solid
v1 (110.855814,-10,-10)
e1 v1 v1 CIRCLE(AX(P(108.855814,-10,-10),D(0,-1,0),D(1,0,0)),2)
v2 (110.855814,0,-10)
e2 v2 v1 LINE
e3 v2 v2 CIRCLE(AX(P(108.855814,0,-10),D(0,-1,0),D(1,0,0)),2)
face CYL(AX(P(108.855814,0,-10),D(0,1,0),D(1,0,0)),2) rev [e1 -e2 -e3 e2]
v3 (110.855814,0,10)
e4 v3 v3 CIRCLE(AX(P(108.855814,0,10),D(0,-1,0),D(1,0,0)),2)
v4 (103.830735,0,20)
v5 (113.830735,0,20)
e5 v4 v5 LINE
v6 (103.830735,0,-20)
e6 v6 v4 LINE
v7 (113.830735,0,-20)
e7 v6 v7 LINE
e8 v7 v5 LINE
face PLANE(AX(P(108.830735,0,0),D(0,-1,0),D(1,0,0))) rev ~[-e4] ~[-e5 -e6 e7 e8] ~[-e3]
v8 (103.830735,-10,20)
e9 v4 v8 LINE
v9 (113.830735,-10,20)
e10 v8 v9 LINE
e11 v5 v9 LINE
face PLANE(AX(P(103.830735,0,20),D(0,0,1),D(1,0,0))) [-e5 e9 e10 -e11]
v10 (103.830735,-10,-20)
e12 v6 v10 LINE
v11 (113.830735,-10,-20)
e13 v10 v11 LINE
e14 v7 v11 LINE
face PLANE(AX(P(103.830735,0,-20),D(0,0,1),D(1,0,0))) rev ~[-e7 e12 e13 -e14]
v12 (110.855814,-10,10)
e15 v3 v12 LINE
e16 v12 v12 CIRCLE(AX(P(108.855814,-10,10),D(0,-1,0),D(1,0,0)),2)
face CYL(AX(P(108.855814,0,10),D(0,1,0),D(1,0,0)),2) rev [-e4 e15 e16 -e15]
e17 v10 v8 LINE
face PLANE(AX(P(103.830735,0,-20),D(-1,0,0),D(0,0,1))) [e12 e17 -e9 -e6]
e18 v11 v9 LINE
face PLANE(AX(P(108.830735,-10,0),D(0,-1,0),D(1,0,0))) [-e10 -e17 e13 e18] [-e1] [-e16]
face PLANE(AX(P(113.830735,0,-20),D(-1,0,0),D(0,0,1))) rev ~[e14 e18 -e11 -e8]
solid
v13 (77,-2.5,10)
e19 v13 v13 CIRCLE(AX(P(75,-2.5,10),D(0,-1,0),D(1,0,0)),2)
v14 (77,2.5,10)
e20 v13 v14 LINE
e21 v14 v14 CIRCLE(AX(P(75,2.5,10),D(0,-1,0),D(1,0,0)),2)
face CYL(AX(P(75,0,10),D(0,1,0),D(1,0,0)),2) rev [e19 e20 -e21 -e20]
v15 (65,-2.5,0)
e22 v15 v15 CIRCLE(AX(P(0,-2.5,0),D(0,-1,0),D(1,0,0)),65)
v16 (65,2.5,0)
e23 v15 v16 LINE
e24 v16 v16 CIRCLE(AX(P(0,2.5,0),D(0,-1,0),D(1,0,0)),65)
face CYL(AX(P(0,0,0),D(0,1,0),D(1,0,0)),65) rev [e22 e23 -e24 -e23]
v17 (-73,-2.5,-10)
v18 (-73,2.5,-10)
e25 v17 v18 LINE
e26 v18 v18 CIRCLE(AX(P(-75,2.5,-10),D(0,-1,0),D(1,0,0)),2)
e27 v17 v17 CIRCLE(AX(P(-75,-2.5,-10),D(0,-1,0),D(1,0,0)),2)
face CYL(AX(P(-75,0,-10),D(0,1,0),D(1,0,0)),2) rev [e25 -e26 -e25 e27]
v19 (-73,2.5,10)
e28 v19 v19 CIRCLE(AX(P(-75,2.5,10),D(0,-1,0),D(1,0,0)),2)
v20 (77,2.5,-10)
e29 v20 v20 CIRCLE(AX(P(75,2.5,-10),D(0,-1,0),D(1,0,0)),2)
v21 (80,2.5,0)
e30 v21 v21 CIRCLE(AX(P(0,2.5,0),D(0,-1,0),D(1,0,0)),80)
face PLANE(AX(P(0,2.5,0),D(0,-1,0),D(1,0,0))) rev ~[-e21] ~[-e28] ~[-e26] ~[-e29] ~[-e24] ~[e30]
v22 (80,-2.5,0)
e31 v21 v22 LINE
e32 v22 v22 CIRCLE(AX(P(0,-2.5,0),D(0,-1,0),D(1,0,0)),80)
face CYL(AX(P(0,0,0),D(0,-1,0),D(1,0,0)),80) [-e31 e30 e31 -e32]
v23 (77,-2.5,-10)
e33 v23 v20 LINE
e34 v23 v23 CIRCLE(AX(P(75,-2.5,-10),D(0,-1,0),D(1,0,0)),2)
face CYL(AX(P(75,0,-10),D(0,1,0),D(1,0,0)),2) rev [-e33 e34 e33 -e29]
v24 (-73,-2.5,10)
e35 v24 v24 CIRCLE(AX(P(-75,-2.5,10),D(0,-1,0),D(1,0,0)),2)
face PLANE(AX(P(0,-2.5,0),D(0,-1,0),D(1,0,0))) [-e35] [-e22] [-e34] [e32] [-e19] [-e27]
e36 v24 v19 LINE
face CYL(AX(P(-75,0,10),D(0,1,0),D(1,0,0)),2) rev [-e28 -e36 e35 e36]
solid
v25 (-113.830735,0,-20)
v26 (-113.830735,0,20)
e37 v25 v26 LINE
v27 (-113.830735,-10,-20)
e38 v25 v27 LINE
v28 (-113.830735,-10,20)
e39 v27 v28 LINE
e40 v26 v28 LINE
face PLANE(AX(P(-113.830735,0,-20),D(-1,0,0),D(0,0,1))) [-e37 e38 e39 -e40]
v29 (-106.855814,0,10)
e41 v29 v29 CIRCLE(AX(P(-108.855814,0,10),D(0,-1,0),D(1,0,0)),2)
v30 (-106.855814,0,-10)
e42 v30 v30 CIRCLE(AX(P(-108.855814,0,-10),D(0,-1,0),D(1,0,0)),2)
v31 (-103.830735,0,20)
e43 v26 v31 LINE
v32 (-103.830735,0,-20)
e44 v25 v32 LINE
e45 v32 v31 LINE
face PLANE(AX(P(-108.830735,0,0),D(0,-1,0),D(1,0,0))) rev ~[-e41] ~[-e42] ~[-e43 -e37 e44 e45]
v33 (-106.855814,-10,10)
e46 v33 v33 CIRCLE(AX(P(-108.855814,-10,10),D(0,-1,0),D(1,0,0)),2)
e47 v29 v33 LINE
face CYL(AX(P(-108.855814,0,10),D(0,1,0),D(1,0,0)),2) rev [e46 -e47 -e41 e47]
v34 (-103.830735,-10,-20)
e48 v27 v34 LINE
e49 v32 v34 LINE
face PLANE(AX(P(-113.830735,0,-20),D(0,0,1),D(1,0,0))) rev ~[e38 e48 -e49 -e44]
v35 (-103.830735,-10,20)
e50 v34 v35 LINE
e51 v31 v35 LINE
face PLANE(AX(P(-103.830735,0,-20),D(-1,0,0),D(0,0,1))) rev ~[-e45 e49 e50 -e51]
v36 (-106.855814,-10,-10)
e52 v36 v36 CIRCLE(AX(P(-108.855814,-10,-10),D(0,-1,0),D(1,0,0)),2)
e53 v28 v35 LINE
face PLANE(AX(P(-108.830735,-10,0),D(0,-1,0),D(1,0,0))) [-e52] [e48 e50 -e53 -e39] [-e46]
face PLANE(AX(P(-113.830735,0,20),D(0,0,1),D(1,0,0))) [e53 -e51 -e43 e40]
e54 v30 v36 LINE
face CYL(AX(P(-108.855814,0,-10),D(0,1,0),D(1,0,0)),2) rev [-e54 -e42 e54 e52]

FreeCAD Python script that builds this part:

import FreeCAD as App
import Part
import Sketcher
Q = App.Units.Quantity

doc = App.newDocument("Part")
body = doc.addObject("PartDesign::Body", "Body")

# Sketch on XZ plane
sketch1 = body.newObject("Sketcher::SketchObject", "Sketch")
sketch1.AttachmentSupport = (doc.getObject("XZ_Plane"), [""])
sketch1.MapMode = "FlatFace"
sketch1.addGeometry([
    Part.Circle(App.Vector(0, 0, 0), App.Vector(0, 0, 1), 80),  # 0
    Part.Circle(App.Vector(-75, -10, 0), App.Vector(0, 0, 1), 2),  # 1
    Part.Circle(App.Vector(75, -10, 0), App.Vector(0, 0, 1), 2),  # 2
    Part.Circle(App.Vector(-75, 10, 0), App.Vector(0, 0, 1), 2),  # 3
    Part.Circle(App.Vector(0, 0, 0), App.Vector(0, 0, 1), 65),  # 4
    Part.Circle(App.Vector(75, 10, 0), App.Vector(0, 0, 1), 2),  # 5
], False)
sketch1.addConstraint([
    Sketcher.Constraint("Coincident", 0, 3, -1, 1),
    Sketcher.Constraint("Coincident", 4, 3, -1, 1),
    Sketcher.Constraint("Equal", 1, 2),
    Sketcher.Constraint("Equal", 2, 3),
    Sketcher.Constraint("Equal", 3, 5),
    Sketcher.Constraint("Symmetric", 2, 3, 3, 3, -1, 1),
    Sketcher.Constraint("Symmetric", 1, 3, 5, 3, -1, 1),
    Sketcher.Constraint("Symmetric", 1, 3, 2, 3, -2),
    Sketcher.Constraint("Diameter", 0, Q("160 mm")),
    Sketcher.Constraint("Diameter", 1, Q("4 mm")),
    Sketcher.Constraint("Diameter", 4, Q("130 mm")),
    Sketcher.Constraint("DistanceX", 1, 3, -1, 1, Q("75 mm")),
    Sketcher.Constraint("DistanceY", 1, 3, -1, 1, Q("10 mm")),
])
pad1 = body.newObject("PartDesign::Pad", "Pad")
pad1.Profile = sketch1
pad1.Length = 5
pad1.Midplane = True
body2 = doc.addObject("PartDesign::Body", "Body001")

# Sketch on XZ plane
sketch2 = body2.newObject("Sketcher::SketchObject", "Sketch001")
sketch2.AttachmentSupport = (doc.getObject("XZ_Plane001"), [""])
sketch2.MapMode = "FlatFace"
sketch2.addGeometry([
    Part.LineSegment(App.Vector(-113.830735, 20, 0), App.Vector(-113.830735, -20, 0)),  # 0
    Part.LineSegment(App.Vector(-113.830735, -20, 0), App.Vector(-103.830735, -20, 0)),  # 1
    Part.LineSegment(App.Vector(-103.830735, -20, 0), App.Vector(-103.830735, 20, 0)),  # 2
    Part.LineSegment(App.Vector(-103.830735, 20, 0), App.Vector(-113.830735, 20, 0)),  # 3
    Part.Circle(App.Vector(-108.855814, -10, 0), App.Vector(0, 0, 1), 2),  # 4
    Part.Circle(App.Vector(-108.855814, 10, 0), App.Vector(0, 0, 1), 2),  # 5
], False)
sketch2.addConstraint([
    Sketcher.Constraint("Coincident", 0, 2, 1, 1),
    Sketcher.Constraint("Coincident", 1, 2, 2, 1),
    Sketcher.Constraint("Coincident", 2, 2, 3, 1),
    Sketcher.Constraint("Coincident", 3, 2, 0, 1),
    Sketcher.Constraint("Vertical", 0),
    Sketcher.Constraint("Horizontal", 1),
    Sketcher.Constraint("Vertical", 2),
    Sketcher.Constraint("Horizontal", 3),
    Sketcher.Constraint("Equal", 4, 5),
    Sketcher.Constraint("Symmetric", 4, 3, 5, 3, -1),
    Sketcher.Constraint("Diameter", 4, Q("4 mm")),
    Sketcher.Constraint("DistanceX", 1, 1, 1, 2, Q("10 mm")),
    Sketcher.Constraint("DistanceY", 0, 2, 0, 1, Q("40 mm")),
    Sketcher.Constraint("DistanceY", 4, 3, -1, 1, Q("10 mm")),
    Sketcher.Constraint("DistanceY", 0, 2, -1, 1, Q("20 mm")),
    Sketcher.Constraint("DistanceX", 0, 2, 4, 3, Q("4.974921 mm")),
    Sketcher.Constraint("DistanceX", 4, 3, -1, 1, Q("108.855814 mm")),
])
pad2 = body2.newObject("PartDesign::Pad", "Pad001")
pad2.Profile = sketch2
pad2.Length = 10
body3 = doc.addObject("PartDesign::Body", "Body002")

# Sketch on XZ plane
sketch3 = body3.newObject("Sketcher::SketchObject", "Sketch002")
sketch3.AttachmentSupport = (doc.getObject("XZ_Plane002"), [""])
sketch3.MapMode = "FlatFace"
sketch3.addGeometry([
    Part.LineSegment(App.Vector(103.830735, 20, 0), App.Vector(103.830735, -20, 0)),  # 0
    Part.LineSegment(App.Vector(103.830735, -20, 0), App.Vector(113.830735, -20, 0)),  # 1
    Part.LineSegment(App.Vector(113.830735, -20, 0), App.Vector(113.830735, 20, 0)),  # 2
    Part.LineSegment(App.Vector(113.830735, 20, 0), App.Vector(103.830735, 20, 0)),  # 3
    Part.Circle(App.Vector(108.855814, -10, 0), App.Vector(0, 0, 1), 2),  # 4
    Part.Circle(App.Vector(108.855814, 10, 0), App.Vector(0, 0, 1), 2),  # 5
], False)
sketch3.addConstraint([
    Sketcher.Constraint("Coincident", 0, 2, 1, 1),
    Sketcher.Constraint("Coincident", 1, 2, 2, 1),
    Sketcher.Constraint("Coincident", 2, 2, 3, 1),
    Sketcher.Constraint("Coincident", 3, 2, 0, 1),
    Sketcher.Constraint("Vertical", 0),
    Sketcher.Constraint("Horizontal", 1),
    Sketcher.Constraint("Vertical", 2),
    Sketcher.Constraint("Horizontal", 3),
    Sketcher.Constraint("Equal", 4, 5),
    Sketcher.Constraint("Symmetric", 4, 3, 5, 3, -1),
    Sketcher.Constraint("Diameter", 4, Q("4 mm")),
    Sketcher.Constraint("DistanceX", 1, 1, 1, 2, Q("10 mm")),
    Sketcher.Constraint("DistanceY", 0, 2, 0, 1, Q("40 mm")),
    Sketcher.Constraint("DistanceY", 4, 3, -1, 1, Q("10 mm")),
    Sketcher.Constraint("DistanceY", 0, 2, -1, 1, Q("20 mm")),
    Sketcher.Constraint("DistanceX", 0, 2, 4, 3, Q("5.025079 mm")),
    Sketcher.Constraint("DistanceX", -1, 1, 4, 3, Q("108.855814 mm")),
])
pad3 = body3.newObject("PartDesign::Pad", "Pad002")
pad3.Profile = sketch3
pad3.Length = 10

doc.recompute()
